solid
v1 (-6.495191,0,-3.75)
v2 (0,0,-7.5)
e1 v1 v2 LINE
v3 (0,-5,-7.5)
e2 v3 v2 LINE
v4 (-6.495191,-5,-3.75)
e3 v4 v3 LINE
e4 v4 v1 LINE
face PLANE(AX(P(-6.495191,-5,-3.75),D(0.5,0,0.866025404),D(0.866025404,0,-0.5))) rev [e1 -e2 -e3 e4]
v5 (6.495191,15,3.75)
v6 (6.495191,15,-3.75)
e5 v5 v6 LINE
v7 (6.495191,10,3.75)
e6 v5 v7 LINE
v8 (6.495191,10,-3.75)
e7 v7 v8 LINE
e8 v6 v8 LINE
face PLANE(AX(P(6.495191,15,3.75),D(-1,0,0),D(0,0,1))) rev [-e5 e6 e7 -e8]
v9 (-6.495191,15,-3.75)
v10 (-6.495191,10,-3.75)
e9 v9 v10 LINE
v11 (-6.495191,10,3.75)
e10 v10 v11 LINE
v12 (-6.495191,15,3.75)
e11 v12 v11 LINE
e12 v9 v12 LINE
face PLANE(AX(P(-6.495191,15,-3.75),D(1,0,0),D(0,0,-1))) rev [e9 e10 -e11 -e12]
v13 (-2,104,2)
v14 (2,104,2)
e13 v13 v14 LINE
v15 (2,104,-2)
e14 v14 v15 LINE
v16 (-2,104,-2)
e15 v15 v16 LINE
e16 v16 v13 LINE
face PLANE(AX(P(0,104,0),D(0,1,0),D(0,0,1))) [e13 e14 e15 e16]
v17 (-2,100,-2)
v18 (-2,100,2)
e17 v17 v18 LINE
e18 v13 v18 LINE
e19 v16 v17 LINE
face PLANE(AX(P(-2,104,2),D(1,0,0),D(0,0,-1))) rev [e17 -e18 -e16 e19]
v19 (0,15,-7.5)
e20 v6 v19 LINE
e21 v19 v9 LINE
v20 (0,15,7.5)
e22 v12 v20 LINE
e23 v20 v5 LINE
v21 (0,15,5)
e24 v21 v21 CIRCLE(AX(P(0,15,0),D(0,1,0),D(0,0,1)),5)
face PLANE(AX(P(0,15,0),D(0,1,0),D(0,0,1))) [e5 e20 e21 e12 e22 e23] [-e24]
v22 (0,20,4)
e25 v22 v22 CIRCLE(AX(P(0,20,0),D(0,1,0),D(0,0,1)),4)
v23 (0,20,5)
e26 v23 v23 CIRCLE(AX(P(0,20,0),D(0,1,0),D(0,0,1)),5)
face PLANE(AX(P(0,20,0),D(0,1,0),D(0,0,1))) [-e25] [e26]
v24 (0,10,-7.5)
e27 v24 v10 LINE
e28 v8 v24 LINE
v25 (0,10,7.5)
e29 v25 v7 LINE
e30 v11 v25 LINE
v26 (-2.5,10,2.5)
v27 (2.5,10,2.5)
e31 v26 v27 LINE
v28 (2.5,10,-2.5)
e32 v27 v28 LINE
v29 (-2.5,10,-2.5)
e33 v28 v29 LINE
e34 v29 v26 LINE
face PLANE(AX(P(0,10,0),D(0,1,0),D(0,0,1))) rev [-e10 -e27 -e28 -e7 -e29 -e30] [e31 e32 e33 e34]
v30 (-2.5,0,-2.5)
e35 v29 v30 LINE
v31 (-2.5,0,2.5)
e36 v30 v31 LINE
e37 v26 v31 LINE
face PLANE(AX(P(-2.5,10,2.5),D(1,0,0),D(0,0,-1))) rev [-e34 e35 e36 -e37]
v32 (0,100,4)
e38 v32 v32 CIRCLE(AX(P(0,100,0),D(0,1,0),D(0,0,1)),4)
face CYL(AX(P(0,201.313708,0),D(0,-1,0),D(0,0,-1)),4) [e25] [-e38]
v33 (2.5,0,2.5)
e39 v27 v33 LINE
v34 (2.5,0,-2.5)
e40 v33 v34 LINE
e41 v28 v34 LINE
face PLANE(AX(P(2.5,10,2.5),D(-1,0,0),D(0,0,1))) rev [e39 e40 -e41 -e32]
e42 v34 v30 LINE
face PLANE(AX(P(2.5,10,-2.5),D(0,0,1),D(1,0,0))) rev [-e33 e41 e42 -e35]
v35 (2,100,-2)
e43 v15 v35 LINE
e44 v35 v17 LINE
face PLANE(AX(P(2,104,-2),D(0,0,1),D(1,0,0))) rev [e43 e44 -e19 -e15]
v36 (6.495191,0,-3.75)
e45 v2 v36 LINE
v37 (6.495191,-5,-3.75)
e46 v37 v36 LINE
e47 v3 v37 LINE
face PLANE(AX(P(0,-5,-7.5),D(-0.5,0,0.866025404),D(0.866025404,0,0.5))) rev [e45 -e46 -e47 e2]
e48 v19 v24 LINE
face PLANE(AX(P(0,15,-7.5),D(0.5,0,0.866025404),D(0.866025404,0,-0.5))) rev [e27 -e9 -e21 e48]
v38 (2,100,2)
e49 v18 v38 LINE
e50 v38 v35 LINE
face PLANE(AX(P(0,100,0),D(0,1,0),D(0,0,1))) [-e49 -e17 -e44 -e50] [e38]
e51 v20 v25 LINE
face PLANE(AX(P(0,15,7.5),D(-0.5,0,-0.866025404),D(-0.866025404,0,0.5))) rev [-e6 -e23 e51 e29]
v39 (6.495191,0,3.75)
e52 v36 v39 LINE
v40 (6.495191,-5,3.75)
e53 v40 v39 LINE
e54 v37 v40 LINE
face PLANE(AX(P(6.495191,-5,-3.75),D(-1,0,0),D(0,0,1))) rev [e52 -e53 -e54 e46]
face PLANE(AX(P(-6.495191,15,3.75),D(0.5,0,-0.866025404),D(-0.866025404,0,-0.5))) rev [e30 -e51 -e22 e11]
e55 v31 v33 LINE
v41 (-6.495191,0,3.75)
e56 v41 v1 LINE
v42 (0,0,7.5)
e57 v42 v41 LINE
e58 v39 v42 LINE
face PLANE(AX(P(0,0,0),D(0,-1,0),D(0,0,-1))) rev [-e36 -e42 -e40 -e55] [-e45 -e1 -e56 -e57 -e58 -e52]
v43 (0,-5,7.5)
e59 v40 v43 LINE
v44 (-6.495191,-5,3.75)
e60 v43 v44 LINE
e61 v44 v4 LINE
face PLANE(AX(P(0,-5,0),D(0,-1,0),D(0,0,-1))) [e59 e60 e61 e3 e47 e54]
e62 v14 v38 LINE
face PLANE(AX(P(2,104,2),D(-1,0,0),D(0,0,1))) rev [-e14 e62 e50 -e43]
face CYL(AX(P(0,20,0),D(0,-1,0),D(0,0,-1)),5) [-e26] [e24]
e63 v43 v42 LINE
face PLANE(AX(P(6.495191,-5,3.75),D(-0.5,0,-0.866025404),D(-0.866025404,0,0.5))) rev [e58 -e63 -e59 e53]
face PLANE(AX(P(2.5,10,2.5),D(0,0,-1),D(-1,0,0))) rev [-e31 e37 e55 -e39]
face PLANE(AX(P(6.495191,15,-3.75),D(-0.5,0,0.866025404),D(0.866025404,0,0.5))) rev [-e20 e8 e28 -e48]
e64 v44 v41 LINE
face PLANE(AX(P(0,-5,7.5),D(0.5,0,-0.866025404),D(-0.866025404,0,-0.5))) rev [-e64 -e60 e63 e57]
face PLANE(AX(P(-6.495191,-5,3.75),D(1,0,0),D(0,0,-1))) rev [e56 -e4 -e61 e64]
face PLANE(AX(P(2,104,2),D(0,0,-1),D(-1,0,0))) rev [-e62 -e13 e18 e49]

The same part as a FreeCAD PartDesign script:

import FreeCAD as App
import Part
import Sketcher
from FreeCAD import Vector
Q = App.Units.Quantity

doc = App.newDocument("Part")
body = doc.addObject("PartDesign::Body", "Body")

# Sketch on XZ plane
sketch1 = doc.addObject("Sketcher::SketchObject", "Sketch")
body.addObject(sketch1)
sketch1.AttachmentSupport = (doc.XZ_Plane, [""])
sketch1.MapMode = "FlatFace"
sketch1.addGeometry(Part.LineSegment(Vector(-2, -2, 0), Vector(-2, 2, 0)), False)
sketch1.addGeometry(Part.LineSegment(Vector(-2, 2, 0), Vector(2, 2, 0)), False)
sketch1.addGeometry(Part.LineSegment(Vector(2, 2, 0), Vector(2, -2, 0)), False)
sketch1.addGeometry(Part.LineSegment(Vector(2, -2, 0), Vector(-2, -2, 0)), False)
sketch1.addConstraint(Sketcher.Constraint("Coincident", 0, 2, 1, 1))
sketch1.addConstraint(Sketcher.Constraint("Coincident", 1, 2, 2, 1))
sketch1.addConstraint(Sketcher.Constraint("Coincident", 2, 2, 3, 1))
sketch1.addConstraint(Sketcher.Constraint("Coincident", 3, 2, 0, 1))
sketch1.addConstraint(Sketcher.Constraint("Vertical", 0))
sketch1.addConstraint(Sketcher.Constraint("Horizontal", 1))
sketch1.addConstraint(Sketcher.Constraint("Vertical", 2))
sketch1.addConstraint(Sketcher.Constraint("Horizontal", 3))
sketch1.addConstraint(Sketcher.Constraint("Symmetric", 0, 2, 2, 2, -1, 1))
sketch1.addConstraint(Sketcher.Constraint("Equal", 3, 0))
sketch1.addConstraint(Sketcher.Constraint("DistanceX", 1, 1, 1, 2, Q("5 mm")))
pad1 = doc.addObject("PartDesign::Pad", "Pad")
body.addObject(pad1)
pad1.Profile = sketch1
pad1.Length = 10
pad1.Reversed = True

# Sketch on XZ plane
sketch2 = doc.addObject("Sketcher::SketchObject", "Sketch001")
body.addObject(sketch2)
sketch2.AttachmentSupport = (doc.XZ_Plane, [""])
sketch2.MapMode = "FlatFace"
sketch2.addGeometry(Part.LineSegment(Vector(0, 8, 0), Vector(-6, 4, 0)), False)
sketch2.addGeometry(Part.LineSegment(Vector(-6, 4, 0), Vector(-6, -4, 0)), False)
sketch2.addGeometry(Part.LineSegment(Vector(-6, -4, 0), Vector(0, -8, 0)), False)
sketch2.addGeometry(Part.LineSegment(Vector(0, -8, 0), Vector(6, -4, 0)), False)
sketch2.addGeometry(Part.LineSegment(Vector(6, -4, 0), Vector(6, 4, 0)), False)
sketch2.addGeometry(Part.LineSegment(Vector(6, 4, 0), Vector(0, 8, 0)), False)
sketch2.addConstraint(Sketcher.Constraint("Coincident", 0, 2, 1, 1))
sketch2.addConstraint(Sketcher.Constraint("Coincident", 1, 2, 2, 1))
sketch2.addConstraint(Sketcher.Constraint("Coincident", 2, 2, 3, 1))
sketch2.addConstraint(Sketcher.Constraint("Coincident", 3, 2, 4, 1))
sketch2.addConstraint(Sketcher.Constraint("Coincident", 4, 2, 5, 1))
sketch2.addConstraint(Sketcher.Constraint("Coincident", 5, 2, 0, 1))
sketch2.addConstraint(Sketcher.Constraint("Vertical", 1))
sketch2.addConstraint(Sketcher.Constraint("Vertical", 4))
sketch2.addConstraint(Sketcher.Constraint("Symmetric", 0, 2, 3, 2, -1, 1))
sketch2.addConstraint(Sketcher.Constraint("Symmetric", 2, 2, 5, 2, -1, 1))
sketch2.addConstraint(Sketcher.Constraint("PointOnObject", 2, 2, -2))
sketch2.addConstraint(Sketcher.Constraint("Parallel", 2, 5))
sketch2.addConstraint(Sketcher.Constraint("Horizontal", 1, 2, 3, 2))
sketch2.addConstraint(Sketcher.Constraint("Angle", 0, Q("-150 deg")))
sketch2.addConstraint(Sketcher.Constraint("DistanceY", 1, 2, 1, 1, Q("7.5 mm")))
sketch2.addConstraint(Sketcher.Constraint("DistanceY", 2, 2, 5, 2, Q("15 mm")))
pad2 = doc.addObject("PartDesign::Pad", "Pad001")
body.addObject(pad2)
pad2.Profile = sketch2
pad2.Length = 5

# Sketch on XZ plane
sketch3 = doc.addObject("Sketcher::SketchObject", "Sketch002")
body.addObject(sketch3)
sketch3.AttachmentSupport = (doc.XZ_Plane, [""])
sketch3.MapMode = "FlatFace"
sketch3.AttachmentOffset = App.Placement(Vector(0, 0, -10), App.Rotation())
sketch3.addGeometry(Part.LineSegment(Vector(0, 8, 0), Vector(6, 4, 0)), False)
sketch3.addGeometry(Part.LineSegment(Vector(6, 4, 0), Vector(6, -4, 0)), False)
sketch3.addGeometry(Part.LineSegment(Vector(6, -4, 0), Vector(0, -8, 0)), False)
sketch3.addGeometry(Part.LineSegment(Vector(0, -8, 0), Vector(-6, -4, 0)), False)
sketch3.addGeometry(Part.LineSegment(Vector(-6, -4, 0), Vector(-6, 4, 0)), False)
sketch3.addGeometry(Part.LineSegment(Vector(-6, 4, 0), Vector(0, 8, 0)), False)
sketch3.addConstraint(Sketcher.Constraint("Coincident", 0, 2, 1, 1))
sketch3.addConstraint(Sketcher.Constraint("Coincident", 1, 2, 2, 1))
sketch3.addConstraint(Sketcher.Constraint("Coincident", 2, 2, 3, 1))
sketch3.addConstraint(Sketcher.Constraint("Coincident", 3, 2, 4, 1))
sketch3.addConstraint(Sketcher.Constraint("Coincident", 4, 2, 5, 1))
sketch3.addConstraint(Sketcher.Constraint("Coincident", 5, 2, 0, 1))
sketch3.addConstraint(Sketcher.Constraint("Vertical", 1))
sketch3.addConstraint(Sketcher.Constraint("Vertical", 4))
sketch3.addConstraint(Sketcher.Constraint("Symmetric", 0, 2, 3, 2, -1, 1))
sketch3.addConstraint(Sketcher.Constraint("Symmetric", 2, 2, 5, 2, -1, 1))
sketch3.addConstraint(Sketcher.Constraint("PointOnObject", 2, 2, -2))
sketch3.addConstraint(Sketcher.Constraint("Parallel", 2, 5))
sketch3.addConstraint(Sketcher.Constraint("Horizontal", 1, 2, 3, 2))
sketch3.addConstraint(Sketcher.Constraint("Angle", 0, Q("-30 deg")))
sketch3.addConstraint(Sketcher.Constraint("DistanceY", 1, 2, 1, 1, Q("7.5 mm")))
sketch3.addConstraint(Sketcher.Constraint("DistanceY", 2, 2, 5, 2, Q("15 mm")))
pad3 = doc.addObject("PartDesign::Pad", "Pad002")
body.addObject(pad3)
pad3.Profile = sketch3
pad3.Length = 5
pad3.Reversed = True

# Sketch on XZ plane
sketch4 = doc.addObject("Sketcher::SketchObject", "Sketch003")
body.addObject(sketch4)
sketch4.AttachmentSupport = (doc.XZ_Plane, [""])
sketch4.MapMode = "FlatFace"
sketch4.AttachmentOffset = App.Placement(Vector(0, 0, -15), App.Rotation())
sketch4.addGeometry(Part.Circle(Vector(0, 0, 0), Vector(0, 0, 1), 5), False)
sketch4.addConstraint(Sketcher.Constraint("Coincident", 0, 3, -1, 1))
sketch4.addConstraint(Sketcher.Constraint("Diameter", 0, Q("10 mm")))
pad4 = doc.addObject("PartDesign::Pad", "Pad003")
body.addObject(pad4)
pad4.Profile = sketch4
pad4.Length = 5
pad4.Reversed = True

# Sketch on XZ plane
sketch5 = doc.addObject("Sketcher::SketchObject", "Sketch004")
body.addObject(sketch5)
sketch5.AttachmentSupport = (doc.XZ_Plane, [""])
sketch5.MapMode = "FlatFace"
sketch5.AttachmentOffset = App.Placement(Vector(0, 0, -20), App.Rotation())
sketch5.addGeometry(Part.Circle(Vector(0, 0, 0), Vector(0, 0, 1), 4), False)
sketch5.addConstraint(Sketcher.Constraint("Coincident", 0, 3, -1, 1))
sketch5.addConstraint(Sketcher.Constraint("Diameter", 0, Q("8 mm")))
pad5 = doc.addObject("PartDesign::Pad", "Pad004")
body.addObject(pad5)
pad5.Profile = sketch5
pad5.Length = 80
pad5.Reversed = True

# Sketch on XZ plane
sketch6 = doc.addObject("Sketcher::SketchObject", "Sketch005")
body.addObject(sketch6)
sketch6.AttachmentSupport = (doc.XZ_Plane, [""])
sketch6.MapMode = "FlatFace"
sketch6.AttachmentOffset = App.Placement(Vector(0, 0, -100), App.Rotation())
sketch6.addGeometry(Part.LineSegment(Vector(-2, -2, 0), Vector(-2, 2, 0)), False)
sketch6.addGeometry(Part.LineSegment(Vector(-2, 2, 0), Vector(2, 2, 0)), False)
sketch6.addGeometry(Part.LineSegment(Vector(2, 2, 0), Vector(2, -2, 0)), False)
sketch6.addGeometry(Part.LineSegment(Vector(2, -2, 0), Vector(-2, -2, 0)), False)
sketch6.addConstraint(Sketcher.Constraint("Coincident", 0, 2, 1, 1))
sketch6.addConstraint(Sketcher.Constraint("Coincident", 1, 2, 2, 1))
sketch6.addConstraint(Sketcher.Constraint("Coincident", 2, 2, 3, 1))
sketch6.addConstraint(Sketcher.Constraint("Coincident", 3, 2, 0, 1))
sketch6.addConstraint(Sketcher.Constraint("Vertical", 0))
sketch6.addConstraint(Sketcher.Constraint("Horizontal", 1))
sketch6.addConstraint(Sketcher.Constraint("Vertical", 2))
sketch6.addConstraint(Sketcher.Constraint("Horizontal", 3))
sketch6.addConstraint(Sketcher.Constraint("Symmetric", 0, 2, 2, 2, -1, 1))
sketch6.addConstraint(Sketcher.Constraint("Equal", 3, 0))
sketch6.addConstraint(Sketcher.Constraint("DistanceX", 1, 1, 1, 2, Q("4 mm")))
pad6 = doc.addObject("PartDesign::Pad", "Pad005")
body.addObject(pad6)
pad6.Profile = sketch6
pad6.Length = 4
pad6.Reversed = True

doc.recompute()
